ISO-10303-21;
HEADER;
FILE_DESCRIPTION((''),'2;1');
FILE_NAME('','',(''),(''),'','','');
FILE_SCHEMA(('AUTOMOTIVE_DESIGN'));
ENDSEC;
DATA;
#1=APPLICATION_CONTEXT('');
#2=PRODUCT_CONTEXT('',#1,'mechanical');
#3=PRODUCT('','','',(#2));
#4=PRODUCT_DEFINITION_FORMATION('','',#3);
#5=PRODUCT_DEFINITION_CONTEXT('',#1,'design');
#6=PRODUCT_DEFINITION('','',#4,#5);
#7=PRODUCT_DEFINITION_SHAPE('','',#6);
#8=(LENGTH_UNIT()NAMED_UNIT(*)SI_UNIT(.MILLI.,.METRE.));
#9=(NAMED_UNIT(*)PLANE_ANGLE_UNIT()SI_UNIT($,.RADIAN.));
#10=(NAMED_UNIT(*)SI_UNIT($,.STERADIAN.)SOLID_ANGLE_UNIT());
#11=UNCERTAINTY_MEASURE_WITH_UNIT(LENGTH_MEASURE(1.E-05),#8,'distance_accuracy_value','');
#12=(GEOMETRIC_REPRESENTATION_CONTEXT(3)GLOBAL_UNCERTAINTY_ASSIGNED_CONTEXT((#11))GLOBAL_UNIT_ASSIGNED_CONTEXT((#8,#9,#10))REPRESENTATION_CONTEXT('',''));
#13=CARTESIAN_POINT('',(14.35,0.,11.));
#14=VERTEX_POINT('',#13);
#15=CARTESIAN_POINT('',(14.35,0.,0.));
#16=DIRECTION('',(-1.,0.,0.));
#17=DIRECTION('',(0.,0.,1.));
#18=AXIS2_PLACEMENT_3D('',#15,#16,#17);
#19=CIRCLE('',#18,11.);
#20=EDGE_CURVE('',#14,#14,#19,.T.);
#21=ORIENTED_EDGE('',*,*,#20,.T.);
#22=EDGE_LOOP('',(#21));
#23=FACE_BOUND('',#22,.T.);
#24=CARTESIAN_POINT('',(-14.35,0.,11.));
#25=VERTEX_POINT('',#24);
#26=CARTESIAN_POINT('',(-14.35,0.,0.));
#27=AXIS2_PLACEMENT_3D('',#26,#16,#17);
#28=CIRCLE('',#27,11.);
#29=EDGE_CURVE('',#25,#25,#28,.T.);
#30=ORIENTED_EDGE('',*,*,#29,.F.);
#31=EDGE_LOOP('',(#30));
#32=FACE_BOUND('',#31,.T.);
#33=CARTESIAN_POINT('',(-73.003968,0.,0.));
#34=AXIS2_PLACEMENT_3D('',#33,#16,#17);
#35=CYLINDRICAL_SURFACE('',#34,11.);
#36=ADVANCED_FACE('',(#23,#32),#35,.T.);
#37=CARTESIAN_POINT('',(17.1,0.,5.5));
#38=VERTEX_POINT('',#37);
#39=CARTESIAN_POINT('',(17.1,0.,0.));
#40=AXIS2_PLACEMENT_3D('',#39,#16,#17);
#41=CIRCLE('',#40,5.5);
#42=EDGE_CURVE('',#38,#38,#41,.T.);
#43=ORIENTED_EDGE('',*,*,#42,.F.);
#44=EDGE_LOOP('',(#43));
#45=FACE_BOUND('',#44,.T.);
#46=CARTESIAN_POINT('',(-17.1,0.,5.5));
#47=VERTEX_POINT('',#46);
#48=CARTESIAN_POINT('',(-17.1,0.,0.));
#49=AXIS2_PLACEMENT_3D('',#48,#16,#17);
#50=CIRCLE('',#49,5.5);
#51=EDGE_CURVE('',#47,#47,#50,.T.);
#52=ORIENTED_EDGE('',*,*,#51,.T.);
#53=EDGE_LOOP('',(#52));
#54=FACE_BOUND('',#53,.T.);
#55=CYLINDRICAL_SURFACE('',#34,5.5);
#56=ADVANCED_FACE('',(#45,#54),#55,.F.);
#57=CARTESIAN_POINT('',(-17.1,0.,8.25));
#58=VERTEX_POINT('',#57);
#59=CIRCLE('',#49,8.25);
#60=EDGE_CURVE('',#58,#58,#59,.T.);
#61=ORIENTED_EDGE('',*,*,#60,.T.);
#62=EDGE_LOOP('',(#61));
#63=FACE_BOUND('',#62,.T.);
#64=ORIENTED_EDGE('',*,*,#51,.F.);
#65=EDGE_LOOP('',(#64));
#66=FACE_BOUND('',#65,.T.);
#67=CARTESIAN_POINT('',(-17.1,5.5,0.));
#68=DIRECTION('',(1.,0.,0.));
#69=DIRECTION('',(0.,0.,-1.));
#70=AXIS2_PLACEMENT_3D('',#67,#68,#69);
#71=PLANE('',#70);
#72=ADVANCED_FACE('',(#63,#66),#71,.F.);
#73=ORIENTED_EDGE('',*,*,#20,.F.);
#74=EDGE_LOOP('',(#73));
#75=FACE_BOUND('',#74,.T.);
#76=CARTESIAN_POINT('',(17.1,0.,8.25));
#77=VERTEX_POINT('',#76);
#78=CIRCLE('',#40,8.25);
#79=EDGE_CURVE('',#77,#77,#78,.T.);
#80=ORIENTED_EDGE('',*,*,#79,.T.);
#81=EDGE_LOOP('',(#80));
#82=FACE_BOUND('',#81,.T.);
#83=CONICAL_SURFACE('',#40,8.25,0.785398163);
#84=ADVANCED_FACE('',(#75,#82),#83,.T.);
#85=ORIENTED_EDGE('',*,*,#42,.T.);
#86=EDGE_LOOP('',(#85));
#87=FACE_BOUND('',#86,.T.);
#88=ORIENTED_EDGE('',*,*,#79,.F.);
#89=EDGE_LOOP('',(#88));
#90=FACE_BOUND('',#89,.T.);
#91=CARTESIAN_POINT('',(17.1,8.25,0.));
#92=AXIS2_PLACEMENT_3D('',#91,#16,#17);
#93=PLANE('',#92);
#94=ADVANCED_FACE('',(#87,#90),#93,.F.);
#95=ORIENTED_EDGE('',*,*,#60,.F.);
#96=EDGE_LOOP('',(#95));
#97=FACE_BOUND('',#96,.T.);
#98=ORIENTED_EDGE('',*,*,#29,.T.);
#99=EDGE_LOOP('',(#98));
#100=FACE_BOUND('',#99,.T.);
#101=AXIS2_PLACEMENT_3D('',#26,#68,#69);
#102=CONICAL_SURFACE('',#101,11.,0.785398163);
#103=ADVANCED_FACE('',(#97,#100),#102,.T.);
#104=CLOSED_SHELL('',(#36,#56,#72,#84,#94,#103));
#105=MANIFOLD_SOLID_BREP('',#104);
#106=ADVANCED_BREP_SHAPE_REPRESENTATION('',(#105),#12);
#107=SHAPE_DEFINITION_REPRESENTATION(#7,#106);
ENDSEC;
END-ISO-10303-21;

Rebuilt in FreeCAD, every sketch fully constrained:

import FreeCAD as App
import Part
import Sketcher
from FreeCAD import Vector
Q = App.Units.Quantity


def add_polygon(sketch, points):
    """Adds a closed chain of lines whose ends are joined by coincident constraints."""
    first, n = sketch.GeometryCount, len(points)
    for a, b in zip(points, points[1:] + points[:1]):
        sketch.addGeometry(Part.LineSegment(App.Vector(*a, 0), App.Vector(*b, 0)), False)
    for i in range(n):
        sketch.addConstraint(Sketcher.Constraint("Coincident", first + i, 2, first + (i + 1) % n, 1))

doc = App.newDocument("Part")
body = doc.addObject("PartDesign::Body", "Body")

sketch1 = doc.addObject("Sketcher::SketchObject", "Sketch")
body.addObject(sketch1)
sketch1.AttachmentSupport = (doc.XY_Plane, [""])
sketch1.MapMode = "FlatFace"
add_polygon(sketch1, [(-17.1, 8.25), (-17.1, 5.5), (17.1, 5.5), (17.1, 8.25), (14.35, 11), (-14.35, 11)])
sketch1.addConstraint(Sketcher.Constraint("Vertical", 0))
sketch1.addConstraint(Sketcher.Constraint("Horizontal", 1))
sketch1.addConstraint(Sketcher.Constraint("Vertical", 2))
sketch1.addConstraint(Sketcher.Constraint("Horizontal", 4))
sketch1.addConstraint(Sketcher.Constraint("Symmetric", 2, 2, 5, 2, -2))
sketch1.addConstraint(Sketcher.Constraint("Perpendicular", 3, 5))
sketch1.addConstraint(Sketcher.Constraint("Equal", 3, 5))
sketch1.addConstraint(Sketcher.Constraint("DistanceX", 1, 1, 1, 2, Q("34.2 mm")))
sketch1.addConstraint(Sketcher.Constraint("DistanceX", 4, 2, 4, 1, Q("28.7 mm")))
sketch1.addConstraint(Sketcher.Constraint("DistanceY", -1, 1, 3, 2, Q("11 mm")))
sketch1.addConstraint(Sketcher.Constraint("DistanceY", 0, 2, 0, 1, Q("2.75 mm")))
revolution = doc.addObject("PartDesign::Revolution", "Revolution")
body.addObject(revolution)
revolution.Profile = sketch1
revolution.ReferenceAxis = (sketch1, ["H_Axis"])
revolution.Angle = 360

doc.recompute()
